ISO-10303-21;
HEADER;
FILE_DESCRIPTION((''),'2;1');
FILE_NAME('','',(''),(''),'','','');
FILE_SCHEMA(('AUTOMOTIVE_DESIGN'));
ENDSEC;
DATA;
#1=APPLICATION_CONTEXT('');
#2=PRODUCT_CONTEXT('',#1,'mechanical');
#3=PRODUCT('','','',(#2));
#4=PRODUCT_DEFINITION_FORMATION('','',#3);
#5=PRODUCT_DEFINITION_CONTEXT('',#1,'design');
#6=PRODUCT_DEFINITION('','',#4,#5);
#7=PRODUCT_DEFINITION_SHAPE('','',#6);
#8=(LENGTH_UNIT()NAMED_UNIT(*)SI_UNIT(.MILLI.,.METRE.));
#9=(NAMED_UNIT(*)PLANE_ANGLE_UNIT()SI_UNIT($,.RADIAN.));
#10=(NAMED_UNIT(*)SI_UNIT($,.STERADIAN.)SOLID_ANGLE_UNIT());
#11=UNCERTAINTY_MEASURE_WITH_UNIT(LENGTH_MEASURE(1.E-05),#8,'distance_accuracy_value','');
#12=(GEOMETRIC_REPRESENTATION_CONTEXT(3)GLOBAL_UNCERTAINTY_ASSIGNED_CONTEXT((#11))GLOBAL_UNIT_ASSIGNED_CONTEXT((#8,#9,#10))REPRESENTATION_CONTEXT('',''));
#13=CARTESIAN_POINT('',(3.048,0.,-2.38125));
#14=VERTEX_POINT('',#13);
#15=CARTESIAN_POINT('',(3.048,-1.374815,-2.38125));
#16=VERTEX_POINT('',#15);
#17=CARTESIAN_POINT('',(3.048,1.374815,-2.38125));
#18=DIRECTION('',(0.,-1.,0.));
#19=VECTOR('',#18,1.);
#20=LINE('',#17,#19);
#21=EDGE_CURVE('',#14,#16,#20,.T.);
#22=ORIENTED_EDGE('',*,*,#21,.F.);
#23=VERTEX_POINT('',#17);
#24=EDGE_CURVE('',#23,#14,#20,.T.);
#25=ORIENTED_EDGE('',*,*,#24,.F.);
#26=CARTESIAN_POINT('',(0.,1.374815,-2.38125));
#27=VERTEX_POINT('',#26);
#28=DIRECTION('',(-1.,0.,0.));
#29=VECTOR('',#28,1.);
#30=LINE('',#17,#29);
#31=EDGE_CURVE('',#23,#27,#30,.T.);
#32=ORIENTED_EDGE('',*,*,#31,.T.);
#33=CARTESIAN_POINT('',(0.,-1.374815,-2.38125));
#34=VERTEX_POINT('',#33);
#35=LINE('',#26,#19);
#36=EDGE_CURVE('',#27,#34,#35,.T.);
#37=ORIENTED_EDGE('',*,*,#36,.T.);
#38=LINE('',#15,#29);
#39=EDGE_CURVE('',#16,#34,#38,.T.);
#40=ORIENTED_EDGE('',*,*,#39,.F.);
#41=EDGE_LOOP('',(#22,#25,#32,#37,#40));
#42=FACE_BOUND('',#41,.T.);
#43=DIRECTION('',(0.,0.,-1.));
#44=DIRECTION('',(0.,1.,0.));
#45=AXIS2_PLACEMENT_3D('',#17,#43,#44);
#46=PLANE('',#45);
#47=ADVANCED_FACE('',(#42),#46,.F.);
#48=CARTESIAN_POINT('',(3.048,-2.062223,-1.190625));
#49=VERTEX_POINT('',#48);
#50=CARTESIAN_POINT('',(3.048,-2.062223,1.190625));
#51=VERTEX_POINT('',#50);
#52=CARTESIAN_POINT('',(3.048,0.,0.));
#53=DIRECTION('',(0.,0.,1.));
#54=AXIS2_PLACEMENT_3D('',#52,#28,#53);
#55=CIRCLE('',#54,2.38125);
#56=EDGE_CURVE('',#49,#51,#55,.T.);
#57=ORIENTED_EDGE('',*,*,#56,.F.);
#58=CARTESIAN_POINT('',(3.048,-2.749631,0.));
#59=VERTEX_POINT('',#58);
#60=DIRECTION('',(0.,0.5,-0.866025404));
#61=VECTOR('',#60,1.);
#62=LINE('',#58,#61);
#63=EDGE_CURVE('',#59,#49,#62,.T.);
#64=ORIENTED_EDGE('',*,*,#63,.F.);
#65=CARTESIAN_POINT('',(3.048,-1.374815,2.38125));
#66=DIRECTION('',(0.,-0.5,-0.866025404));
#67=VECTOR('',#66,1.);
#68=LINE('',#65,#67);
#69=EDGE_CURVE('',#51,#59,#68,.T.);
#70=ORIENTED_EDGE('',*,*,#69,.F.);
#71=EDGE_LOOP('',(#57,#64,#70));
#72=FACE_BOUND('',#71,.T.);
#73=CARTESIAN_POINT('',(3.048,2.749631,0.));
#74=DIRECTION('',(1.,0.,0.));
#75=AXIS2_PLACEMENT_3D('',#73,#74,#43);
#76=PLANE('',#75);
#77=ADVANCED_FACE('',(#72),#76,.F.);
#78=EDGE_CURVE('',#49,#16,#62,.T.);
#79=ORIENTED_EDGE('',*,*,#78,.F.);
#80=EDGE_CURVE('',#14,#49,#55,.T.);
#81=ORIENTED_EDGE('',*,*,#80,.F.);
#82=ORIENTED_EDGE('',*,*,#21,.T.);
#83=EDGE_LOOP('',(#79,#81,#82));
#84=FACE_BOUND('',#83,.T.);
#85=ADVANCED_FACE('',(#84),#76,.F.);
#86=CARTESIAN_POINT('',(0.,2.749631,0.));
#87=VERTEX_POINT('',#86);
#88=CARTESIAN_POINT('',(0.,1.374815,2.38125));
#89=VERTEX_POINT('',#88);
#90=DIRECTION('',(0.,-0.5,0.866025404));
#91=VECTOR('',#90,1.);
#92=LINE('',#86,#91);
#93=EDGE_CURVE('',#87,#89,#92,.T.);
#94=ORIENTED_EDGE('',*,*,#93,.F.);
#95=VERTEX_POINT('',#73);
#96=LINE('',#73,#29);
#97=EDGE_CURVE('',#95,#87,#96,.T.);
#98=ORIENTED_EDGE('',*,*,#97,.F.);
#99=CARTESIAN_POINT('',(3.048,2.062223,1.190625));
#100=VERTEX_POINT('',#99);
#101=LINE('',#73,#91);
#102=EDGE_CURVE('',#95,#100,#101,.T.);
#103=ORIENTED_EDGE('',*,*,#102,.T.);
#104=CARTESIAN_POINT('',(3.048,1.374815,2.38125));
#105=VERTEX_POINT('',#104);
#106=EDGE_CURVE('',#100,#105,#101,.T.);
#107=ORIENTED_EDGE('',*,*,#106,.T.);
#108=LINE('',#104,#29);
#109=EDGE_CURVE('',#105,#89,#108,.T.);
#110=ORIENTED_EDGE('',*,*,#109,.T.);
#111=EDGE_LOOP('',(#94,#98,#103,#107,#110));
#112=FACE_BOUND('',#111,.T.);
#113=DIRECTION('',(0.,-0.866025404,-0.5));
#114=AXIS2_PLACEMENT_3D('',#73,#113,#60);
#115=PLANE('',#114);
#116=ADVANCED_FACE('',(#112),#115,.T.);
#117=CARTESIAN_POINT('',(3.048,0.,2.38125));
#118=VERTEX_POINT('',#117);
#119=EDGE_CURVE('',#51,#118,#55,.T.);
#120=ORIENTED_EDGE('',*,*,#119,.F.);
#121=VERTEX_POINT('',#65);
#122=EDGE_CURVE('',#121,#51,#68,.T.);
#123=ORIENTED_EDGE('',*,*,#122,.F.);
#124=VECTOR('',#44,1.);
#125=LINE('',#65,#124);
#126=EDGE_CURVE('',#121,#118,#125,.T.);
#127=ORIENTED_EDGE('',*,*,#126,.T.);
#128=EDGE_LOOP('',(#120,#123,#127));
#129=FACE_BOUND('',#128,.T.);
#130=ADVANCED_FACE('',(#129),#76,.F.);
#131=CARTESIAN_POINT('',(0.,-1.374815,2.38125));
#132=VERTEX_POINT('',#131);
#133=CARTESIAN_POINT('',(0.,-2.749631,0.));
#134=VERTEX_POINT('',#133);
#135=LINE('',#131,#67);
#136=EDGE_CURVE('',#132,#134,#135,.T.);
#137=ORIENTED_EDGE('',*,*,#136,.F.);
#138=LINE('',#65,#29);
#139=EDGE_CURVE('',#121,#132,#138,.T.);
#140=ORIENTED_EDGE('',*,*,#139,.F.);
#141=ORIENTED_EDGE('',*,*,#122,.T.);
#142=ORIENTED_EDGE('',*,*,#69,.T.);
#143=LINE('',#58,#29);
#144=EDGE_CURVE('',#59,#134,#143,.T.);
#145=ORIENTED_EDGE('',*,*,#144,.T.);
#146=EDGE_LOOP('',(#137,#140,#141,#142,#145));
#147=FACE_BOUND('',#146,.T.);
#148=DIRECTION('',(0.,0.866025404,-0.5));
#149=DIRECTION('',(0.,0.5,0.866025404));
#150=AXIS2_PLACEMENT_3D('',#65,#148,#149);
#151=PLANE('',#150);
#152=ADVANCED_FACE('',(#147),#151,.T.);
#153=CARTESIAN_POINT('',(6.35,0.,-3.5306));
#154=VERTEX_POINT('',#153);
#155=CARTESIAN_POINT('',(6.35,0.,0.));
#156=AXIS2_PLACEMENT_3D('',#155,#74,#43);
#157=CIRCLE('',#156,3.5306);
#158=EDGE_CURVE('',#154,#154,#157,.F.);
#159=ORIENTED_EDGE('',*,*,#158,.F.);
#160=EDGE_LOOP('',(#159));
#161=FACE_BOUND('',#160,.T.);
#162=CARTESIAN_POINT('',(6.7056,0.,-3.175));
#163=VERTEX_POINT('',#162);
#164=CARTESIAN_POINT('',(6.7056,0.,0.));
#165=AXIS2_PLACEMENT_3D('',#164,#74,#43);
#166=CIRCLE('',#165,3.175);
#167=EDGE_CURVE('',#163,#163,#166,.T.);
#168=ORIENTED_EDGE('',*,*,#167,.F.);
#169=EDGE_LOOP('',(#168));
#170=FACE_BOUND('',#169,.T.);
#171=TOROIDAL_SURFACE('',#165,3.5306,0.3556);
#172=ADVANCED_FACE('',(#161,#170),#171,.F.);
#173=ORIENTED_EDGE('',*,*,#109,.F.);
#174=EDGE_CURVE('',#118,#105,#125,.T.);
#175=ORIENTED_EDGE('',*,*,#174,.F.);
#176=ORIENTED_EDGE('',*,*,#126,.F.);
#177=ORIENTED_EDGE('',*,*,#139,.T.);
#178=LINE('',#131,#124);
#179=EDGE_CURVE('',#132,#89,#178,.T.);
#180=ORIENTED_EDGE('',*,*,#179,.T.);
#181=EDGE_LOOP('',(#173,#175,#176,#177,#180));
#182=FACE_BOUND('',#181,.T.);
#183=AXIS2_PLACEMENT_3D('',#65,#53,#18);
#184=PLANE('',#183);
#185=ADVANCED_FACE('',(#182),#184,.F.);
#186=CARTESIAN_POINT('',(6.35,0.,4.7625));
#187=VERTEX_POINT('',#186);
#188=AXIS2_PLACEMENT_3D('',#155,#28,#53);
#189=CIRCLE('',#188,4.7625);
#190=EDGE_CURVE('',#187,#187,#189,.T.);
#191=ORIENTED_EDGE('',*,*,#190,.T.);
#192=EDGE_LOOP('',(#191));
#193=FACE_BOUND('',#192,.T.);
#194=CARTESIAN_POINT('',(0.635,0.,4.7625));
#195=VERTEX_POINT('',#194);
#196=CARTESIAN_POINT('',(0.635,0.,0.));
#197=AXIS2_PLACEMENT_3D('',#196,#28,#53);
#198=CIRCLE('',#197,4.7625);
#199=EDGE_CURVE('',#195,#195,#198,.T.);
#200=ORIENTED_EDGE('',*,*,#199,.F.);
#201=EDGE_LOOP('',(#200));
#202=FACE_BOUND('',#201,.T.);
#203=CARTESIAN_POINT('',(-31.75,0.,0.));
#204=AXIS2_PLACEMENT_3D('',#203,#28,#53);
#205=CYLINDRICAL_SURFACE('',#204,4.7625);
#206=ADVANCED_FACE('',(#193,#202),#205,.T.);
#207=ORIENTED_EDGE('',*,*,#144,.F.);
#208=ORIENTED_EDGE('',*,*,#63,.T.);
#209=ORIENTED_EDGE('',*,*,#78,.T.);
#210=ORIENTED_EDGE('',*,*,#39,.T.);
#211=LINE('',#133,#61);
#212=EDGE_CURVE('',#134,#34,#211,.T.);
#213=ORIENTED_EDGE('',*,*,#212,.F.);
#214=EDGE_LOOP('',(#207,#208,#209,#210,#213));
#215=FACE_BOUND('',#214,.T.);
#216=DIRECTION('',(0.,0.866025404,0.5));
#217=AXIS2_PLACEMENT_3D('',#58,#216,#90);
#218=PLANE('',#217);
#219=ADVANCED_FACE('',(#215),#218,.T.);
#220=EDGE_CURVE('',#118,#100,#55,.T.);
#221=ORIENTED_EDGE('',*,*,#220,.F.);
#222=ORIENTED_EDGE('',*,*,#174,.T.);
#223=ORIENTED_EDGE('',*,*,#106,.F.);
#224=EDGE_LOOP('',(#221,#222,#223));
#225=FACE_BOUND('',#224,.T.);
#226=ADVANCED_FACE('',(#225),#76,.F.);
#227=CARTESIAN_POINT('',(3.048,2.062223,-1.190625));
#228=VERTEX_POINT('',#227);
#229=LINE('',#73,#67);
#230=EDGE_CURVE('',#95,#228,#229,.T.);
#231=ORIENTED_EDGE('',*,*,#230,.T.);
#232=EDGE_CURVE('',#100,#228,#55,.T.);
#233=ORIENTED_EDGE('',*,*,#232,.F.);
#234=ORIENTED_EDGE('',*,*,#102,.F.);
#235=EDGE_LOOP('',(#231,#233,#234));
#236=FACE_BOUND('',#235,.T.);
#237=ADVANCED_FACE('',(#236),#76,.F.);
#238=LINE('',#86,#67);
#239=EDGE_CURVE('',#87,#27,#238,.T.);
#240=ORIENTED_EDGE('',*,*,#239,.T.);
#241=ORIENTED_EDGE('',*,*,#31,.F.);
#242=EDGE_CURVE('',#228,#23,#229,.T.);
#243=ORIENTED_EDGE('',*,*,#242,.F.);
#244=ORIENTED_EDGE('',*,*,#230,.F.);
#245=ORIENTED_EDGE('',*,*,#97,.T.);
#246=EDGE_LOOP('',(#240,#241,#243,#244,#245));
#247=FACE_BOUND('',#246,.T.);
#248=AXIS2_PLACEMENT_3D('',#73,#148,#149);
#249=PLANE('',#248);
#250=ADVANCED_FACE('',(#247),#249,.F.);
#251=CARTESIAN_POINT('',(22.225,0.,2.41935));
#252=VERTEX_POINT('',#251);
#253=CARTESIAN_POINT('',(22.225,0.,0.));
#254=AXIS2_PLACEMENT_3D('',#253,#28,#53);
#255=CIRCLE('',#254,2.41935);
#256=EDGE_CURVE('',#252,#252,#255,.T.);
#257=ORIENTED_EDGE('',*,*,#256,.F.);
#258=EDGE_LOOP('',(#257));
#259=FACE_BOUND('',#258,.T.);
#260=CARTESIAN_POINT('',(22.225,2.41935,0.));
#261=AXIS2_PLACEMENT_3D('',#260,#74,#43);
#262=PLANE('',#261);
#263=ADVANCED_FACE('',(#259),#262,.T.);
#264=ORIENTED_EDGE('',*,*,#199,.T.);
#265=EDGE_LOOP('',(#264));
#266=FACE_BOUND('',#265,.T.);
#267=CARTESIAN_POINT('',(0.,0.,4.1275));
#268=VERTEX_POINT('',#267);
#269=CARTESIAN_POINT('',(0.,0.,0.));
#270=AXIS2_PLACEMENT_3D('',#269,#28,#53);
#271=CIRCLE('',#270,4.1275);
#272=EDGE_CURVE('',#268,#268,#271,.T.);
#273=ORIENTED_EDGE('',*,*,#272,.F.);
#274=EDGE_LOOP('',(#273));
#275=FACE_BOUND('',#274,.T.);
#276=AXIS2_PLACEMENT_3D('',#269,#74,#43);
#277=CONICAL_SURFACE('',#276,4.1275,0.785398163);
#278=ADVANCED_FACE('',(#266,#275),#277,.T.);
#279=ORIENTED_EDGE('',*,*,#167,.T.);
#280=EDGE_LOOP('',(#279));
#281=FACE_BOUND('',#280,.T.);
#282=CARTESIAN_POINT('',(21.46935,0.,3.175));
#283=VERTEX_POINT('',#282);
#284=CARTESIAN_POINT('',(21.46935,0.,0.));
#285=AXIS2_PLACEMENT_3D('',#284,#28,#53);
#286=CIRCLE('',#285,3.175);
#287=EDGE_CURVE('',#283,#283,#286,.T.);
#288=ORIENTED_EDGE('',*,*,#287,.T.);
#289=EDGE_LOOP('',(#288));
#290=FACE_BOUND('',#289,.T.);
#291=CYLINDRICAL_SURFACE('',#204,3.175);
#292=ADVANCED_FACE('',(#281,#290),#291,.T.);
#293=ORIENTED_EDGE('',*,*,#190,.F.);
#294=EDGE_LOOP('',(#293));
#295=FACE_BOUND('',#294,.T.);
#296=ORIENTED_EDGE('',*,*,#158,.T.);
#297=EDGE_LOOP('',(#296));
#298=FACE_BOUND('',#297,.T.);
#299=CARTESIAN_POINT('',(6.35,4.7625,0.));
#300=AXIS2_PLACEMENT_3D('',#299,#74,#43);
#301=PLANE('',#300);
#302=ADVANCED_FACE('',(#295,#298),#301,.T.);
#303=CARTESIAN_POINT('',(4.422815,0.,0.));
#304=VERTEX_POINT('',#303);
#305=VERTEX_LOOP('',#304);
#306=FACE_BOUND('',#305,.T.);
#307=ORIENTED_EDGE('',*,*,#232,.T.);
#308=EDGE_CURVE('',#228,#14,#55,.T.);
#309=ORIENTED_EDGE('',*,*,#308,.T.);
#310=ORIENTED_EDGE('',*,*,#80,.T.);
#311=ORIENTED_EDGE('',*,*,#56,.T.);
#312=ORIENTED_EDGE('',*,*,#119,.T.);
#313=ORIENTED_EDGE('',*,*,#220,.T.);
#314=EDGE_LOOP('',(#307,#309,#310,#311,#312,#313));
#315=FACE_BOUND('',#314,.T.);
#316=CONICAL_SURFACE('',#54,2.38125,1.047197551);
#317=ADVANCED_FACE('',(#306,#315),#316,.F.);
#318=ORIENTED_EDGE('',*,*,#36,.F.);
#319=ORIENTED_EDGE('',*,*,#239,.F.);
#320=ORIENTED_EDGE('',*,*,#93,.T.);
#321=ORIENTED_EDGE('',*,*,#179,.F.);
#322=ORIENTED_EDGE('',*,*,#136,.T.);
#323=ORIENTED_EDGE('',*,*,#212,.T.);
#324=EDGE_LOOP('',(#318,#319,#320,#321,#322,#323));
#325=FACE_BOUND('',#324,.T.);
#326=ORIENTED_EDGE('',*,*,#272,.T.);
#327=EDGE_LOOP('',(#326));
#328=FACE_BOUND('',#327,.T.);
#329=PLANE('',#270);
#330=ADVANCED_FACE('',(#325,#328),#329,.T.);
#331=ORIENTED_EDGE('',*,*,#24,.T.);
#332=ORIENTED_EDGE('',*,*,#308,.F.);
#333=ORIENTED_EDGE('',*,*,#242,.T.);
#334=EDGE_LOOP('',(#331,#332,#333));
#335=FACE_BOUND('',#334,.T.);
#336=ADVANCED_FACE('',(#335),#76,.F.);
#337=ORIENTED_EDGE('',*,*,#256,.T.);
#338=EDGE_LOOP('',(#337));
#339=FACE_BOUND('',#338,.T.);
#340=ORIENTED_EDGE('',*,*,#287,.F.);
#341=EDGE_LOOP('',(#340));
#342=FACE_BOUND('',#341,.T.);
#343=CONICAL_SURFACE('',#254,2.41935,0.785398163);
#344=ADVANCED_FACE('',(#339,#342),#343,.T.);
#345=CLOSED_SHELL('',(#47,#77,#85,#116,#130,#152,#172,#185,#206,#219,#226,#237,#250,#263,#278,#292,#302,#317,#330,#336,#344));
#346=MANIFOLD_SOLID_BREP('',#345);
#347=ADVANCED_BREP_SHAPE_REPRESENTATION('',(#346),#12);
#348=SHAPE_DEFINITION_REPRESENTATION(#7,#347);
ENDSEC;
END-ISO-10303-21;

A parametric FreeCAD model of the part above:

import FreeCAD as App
import Part
import Sketcher
from FreeCAD import Vector
Q = App.Units.Quantity


def edges_at(feature, points):
    """Names of the edges that pass closest to the given points."""
    edges = feature.Shape.Edges
    near = lambda p: min(range(len(edges)), key=lambda i: edges[i].distToShape(Part.Vertex(*p))[0])
    return sorted({f"Edge{near(p) + 1}" for p in points})


def add_polygon(sketch, points):
    """Adds a closed chain of lines whose ends are joined by coincident constraints."""
    first, n = sketch.GeometryCount, len(points)
    for a, b in zip(points, points[1:] + points[:1]):
        sketch.addGeometry(Part.LineSegment(App.Vector(*a, 0), App.Vector(*b, 0)), False)
    for i in range(n):
        sketch.addConstraint(Sketcher.Constraint("Coincident", first + i, 2, first + (i + 1) % n, 1))

doc = App.newDocument("Part")
body = doc.addObject("PartDesign::Body", "Body")

# Sketch on XY plane
sketch1 = body.newObject("Sketcher::SketchObject", "Sketch")
sketch1.AttachmentSupport = (doc.getObject("XY_Plane"), [""])
sketch1.MapMode = "FlatFace"
add_polygon(sketch1, [(0, 4.1), (0, 0), (22.2, 0), (22.2, 2.4), (21.5, 3.2), (6.3, 3.2), (6.3, 4.8), (0.6, 4.8)])  # lines 0-7
sketch1.addConstraint([
    Sketcher.Constraint("Vertical", 0),
    Sketcher.Constraint("Horizontal", 1),
    Sketcher.Constraint("Vertical", 2),
    Sketcher.Constraint("Horizontal", 4),
    Sketcher.Constraint("Vertical", 5),
    Sketcher.Constraint("Horizontal", 6),
    Sketcher.Constraint("Coincident", 0, 2, -1, 1),
    Sketcher.Constraint("Perpendicular", 3, 7),
    Sketcher.Constraint("Angle", 3, Q("135 deg")),
    Sketcher.Constraint("DistanceX", 1, 1, 1, 2, Q("0.875 in")),
    Sketcher.Constraint("DistanceX", 6, 2, 6, 1, Q("0.225 in")),
    Sketcher.Constraint("DistanceY", 5, 1, 5, 2, Q("0.0625 in")),
    Sketcher.Constraint("DistanceX", -1, 1, 4, 2, Q("0.25 in")),
    Sketcher.Constraint("DistanceY", 0, 2, 0, 1, Q("0.1625 in")),
    Sketcher.Constraint("DistanceX", 4, 2, 4, 1, 15.11935),
])
revolution = body.newObject("PartDesign::Revolution", "Revolution")
revolution.Profile = sketch1
revolution.ReferenceAxis = (sketch1, ["H_Axis"])
revolution.Angle = 360
doc.recompute()

fillet = body.newObject("PartDesign::Fillet", "Fillet")
fillet.Base = (revolution, edges_at(revolution, [(6.35, 0, -3.175)]))
fillet.Radius = Q("0.014 in")

# Sketch on XY plane
sketch2 = body.newObject("Sketcher::SketchObject", "Sketch001")
sketch2.AttachmentSupport = (doc.getObject("XY_Plane"), [""])
sketch2.MapMode = "FlatFace"
add_polygon(sketch2, [(3, 2.4), (0, 2.4), (0, 0), (4.4, 0)])  # lines 0-3
sketch2.addConstraint([
    Sketcher.Constraint("Horizontal", 0),
    Sketcher.Constraint("Vertical", 1),
    Sketcher.Constraint("Horizontal", 2),
    Sketcher.Constraint("Coincident", 1, 2, -1, 1),
    Sketcher.Constraint("Angle", 3, Q("120 deg")),
    Sketcher.Constraint("DistanceX", 0, 2, 0, 1, Q("0.12 in")),
    Sketcher.Constraint("DistanceY", 1, 2, 1, 1, Q("0.09375 in")),
])
groove = body.newObject("PartDesign::Groove", "Groove")
groove.Profile = sketch2
groove.ReferenceAxis = (sketch2, ["H_Axis"])
groove.Angle = 360

# Sketch on YZ plane
sketch3 = body.newObject("Sketcher::SketchObject", "Sketch002")
sketch3.AttachmentSupport = (doc.getObject("YZ_Plane"), [""])
sketch3.MapMode = "FlatFace"
add_polygon(sketch3, [(2.7, 0), (1.4, -2.4), (-1.4, -2.4), (-2.7, 0), (-1.4, 2.4), (1.4, 2.4)])  # lines 0-5
sketch3.addConstraint([
    Sketcher.Constraint("Horizontal", 1),
    Sketcher.Constraint("Horizontal", 4),
    Sketcher.Constraint("Symmetric", 0, 2, 3, 2, -1, 1),
    Sketcher.Constraint("Symmetric", 2, 2, 5, 2, -1, 1),
    Sketcher.Constraint("PointOnObject", 2, 2, -1),
    Sketcher.Constraint("Parallel", 2, 5),
    Sketcher.Constraint("Vertical", 1, 2, 3, 2),
    Sketcher.Constraint("Angle", 0, Q("-120 deg")),
    Sketcher.Constraint("DistanceY", 0, 2, -1, 1, Q("0.09375 in")),
    Sketcher.Constraint("DistanceX", 1, 2, 1, 1, 2.749631),
])
pocket1 = body.newObject("PartDesign::Pocket", "Pocket")
pocket1.Profile = sketch3
pocket1.Length = Q("0.12 in")
pocket1.Reversed = True

doc.recompute()
